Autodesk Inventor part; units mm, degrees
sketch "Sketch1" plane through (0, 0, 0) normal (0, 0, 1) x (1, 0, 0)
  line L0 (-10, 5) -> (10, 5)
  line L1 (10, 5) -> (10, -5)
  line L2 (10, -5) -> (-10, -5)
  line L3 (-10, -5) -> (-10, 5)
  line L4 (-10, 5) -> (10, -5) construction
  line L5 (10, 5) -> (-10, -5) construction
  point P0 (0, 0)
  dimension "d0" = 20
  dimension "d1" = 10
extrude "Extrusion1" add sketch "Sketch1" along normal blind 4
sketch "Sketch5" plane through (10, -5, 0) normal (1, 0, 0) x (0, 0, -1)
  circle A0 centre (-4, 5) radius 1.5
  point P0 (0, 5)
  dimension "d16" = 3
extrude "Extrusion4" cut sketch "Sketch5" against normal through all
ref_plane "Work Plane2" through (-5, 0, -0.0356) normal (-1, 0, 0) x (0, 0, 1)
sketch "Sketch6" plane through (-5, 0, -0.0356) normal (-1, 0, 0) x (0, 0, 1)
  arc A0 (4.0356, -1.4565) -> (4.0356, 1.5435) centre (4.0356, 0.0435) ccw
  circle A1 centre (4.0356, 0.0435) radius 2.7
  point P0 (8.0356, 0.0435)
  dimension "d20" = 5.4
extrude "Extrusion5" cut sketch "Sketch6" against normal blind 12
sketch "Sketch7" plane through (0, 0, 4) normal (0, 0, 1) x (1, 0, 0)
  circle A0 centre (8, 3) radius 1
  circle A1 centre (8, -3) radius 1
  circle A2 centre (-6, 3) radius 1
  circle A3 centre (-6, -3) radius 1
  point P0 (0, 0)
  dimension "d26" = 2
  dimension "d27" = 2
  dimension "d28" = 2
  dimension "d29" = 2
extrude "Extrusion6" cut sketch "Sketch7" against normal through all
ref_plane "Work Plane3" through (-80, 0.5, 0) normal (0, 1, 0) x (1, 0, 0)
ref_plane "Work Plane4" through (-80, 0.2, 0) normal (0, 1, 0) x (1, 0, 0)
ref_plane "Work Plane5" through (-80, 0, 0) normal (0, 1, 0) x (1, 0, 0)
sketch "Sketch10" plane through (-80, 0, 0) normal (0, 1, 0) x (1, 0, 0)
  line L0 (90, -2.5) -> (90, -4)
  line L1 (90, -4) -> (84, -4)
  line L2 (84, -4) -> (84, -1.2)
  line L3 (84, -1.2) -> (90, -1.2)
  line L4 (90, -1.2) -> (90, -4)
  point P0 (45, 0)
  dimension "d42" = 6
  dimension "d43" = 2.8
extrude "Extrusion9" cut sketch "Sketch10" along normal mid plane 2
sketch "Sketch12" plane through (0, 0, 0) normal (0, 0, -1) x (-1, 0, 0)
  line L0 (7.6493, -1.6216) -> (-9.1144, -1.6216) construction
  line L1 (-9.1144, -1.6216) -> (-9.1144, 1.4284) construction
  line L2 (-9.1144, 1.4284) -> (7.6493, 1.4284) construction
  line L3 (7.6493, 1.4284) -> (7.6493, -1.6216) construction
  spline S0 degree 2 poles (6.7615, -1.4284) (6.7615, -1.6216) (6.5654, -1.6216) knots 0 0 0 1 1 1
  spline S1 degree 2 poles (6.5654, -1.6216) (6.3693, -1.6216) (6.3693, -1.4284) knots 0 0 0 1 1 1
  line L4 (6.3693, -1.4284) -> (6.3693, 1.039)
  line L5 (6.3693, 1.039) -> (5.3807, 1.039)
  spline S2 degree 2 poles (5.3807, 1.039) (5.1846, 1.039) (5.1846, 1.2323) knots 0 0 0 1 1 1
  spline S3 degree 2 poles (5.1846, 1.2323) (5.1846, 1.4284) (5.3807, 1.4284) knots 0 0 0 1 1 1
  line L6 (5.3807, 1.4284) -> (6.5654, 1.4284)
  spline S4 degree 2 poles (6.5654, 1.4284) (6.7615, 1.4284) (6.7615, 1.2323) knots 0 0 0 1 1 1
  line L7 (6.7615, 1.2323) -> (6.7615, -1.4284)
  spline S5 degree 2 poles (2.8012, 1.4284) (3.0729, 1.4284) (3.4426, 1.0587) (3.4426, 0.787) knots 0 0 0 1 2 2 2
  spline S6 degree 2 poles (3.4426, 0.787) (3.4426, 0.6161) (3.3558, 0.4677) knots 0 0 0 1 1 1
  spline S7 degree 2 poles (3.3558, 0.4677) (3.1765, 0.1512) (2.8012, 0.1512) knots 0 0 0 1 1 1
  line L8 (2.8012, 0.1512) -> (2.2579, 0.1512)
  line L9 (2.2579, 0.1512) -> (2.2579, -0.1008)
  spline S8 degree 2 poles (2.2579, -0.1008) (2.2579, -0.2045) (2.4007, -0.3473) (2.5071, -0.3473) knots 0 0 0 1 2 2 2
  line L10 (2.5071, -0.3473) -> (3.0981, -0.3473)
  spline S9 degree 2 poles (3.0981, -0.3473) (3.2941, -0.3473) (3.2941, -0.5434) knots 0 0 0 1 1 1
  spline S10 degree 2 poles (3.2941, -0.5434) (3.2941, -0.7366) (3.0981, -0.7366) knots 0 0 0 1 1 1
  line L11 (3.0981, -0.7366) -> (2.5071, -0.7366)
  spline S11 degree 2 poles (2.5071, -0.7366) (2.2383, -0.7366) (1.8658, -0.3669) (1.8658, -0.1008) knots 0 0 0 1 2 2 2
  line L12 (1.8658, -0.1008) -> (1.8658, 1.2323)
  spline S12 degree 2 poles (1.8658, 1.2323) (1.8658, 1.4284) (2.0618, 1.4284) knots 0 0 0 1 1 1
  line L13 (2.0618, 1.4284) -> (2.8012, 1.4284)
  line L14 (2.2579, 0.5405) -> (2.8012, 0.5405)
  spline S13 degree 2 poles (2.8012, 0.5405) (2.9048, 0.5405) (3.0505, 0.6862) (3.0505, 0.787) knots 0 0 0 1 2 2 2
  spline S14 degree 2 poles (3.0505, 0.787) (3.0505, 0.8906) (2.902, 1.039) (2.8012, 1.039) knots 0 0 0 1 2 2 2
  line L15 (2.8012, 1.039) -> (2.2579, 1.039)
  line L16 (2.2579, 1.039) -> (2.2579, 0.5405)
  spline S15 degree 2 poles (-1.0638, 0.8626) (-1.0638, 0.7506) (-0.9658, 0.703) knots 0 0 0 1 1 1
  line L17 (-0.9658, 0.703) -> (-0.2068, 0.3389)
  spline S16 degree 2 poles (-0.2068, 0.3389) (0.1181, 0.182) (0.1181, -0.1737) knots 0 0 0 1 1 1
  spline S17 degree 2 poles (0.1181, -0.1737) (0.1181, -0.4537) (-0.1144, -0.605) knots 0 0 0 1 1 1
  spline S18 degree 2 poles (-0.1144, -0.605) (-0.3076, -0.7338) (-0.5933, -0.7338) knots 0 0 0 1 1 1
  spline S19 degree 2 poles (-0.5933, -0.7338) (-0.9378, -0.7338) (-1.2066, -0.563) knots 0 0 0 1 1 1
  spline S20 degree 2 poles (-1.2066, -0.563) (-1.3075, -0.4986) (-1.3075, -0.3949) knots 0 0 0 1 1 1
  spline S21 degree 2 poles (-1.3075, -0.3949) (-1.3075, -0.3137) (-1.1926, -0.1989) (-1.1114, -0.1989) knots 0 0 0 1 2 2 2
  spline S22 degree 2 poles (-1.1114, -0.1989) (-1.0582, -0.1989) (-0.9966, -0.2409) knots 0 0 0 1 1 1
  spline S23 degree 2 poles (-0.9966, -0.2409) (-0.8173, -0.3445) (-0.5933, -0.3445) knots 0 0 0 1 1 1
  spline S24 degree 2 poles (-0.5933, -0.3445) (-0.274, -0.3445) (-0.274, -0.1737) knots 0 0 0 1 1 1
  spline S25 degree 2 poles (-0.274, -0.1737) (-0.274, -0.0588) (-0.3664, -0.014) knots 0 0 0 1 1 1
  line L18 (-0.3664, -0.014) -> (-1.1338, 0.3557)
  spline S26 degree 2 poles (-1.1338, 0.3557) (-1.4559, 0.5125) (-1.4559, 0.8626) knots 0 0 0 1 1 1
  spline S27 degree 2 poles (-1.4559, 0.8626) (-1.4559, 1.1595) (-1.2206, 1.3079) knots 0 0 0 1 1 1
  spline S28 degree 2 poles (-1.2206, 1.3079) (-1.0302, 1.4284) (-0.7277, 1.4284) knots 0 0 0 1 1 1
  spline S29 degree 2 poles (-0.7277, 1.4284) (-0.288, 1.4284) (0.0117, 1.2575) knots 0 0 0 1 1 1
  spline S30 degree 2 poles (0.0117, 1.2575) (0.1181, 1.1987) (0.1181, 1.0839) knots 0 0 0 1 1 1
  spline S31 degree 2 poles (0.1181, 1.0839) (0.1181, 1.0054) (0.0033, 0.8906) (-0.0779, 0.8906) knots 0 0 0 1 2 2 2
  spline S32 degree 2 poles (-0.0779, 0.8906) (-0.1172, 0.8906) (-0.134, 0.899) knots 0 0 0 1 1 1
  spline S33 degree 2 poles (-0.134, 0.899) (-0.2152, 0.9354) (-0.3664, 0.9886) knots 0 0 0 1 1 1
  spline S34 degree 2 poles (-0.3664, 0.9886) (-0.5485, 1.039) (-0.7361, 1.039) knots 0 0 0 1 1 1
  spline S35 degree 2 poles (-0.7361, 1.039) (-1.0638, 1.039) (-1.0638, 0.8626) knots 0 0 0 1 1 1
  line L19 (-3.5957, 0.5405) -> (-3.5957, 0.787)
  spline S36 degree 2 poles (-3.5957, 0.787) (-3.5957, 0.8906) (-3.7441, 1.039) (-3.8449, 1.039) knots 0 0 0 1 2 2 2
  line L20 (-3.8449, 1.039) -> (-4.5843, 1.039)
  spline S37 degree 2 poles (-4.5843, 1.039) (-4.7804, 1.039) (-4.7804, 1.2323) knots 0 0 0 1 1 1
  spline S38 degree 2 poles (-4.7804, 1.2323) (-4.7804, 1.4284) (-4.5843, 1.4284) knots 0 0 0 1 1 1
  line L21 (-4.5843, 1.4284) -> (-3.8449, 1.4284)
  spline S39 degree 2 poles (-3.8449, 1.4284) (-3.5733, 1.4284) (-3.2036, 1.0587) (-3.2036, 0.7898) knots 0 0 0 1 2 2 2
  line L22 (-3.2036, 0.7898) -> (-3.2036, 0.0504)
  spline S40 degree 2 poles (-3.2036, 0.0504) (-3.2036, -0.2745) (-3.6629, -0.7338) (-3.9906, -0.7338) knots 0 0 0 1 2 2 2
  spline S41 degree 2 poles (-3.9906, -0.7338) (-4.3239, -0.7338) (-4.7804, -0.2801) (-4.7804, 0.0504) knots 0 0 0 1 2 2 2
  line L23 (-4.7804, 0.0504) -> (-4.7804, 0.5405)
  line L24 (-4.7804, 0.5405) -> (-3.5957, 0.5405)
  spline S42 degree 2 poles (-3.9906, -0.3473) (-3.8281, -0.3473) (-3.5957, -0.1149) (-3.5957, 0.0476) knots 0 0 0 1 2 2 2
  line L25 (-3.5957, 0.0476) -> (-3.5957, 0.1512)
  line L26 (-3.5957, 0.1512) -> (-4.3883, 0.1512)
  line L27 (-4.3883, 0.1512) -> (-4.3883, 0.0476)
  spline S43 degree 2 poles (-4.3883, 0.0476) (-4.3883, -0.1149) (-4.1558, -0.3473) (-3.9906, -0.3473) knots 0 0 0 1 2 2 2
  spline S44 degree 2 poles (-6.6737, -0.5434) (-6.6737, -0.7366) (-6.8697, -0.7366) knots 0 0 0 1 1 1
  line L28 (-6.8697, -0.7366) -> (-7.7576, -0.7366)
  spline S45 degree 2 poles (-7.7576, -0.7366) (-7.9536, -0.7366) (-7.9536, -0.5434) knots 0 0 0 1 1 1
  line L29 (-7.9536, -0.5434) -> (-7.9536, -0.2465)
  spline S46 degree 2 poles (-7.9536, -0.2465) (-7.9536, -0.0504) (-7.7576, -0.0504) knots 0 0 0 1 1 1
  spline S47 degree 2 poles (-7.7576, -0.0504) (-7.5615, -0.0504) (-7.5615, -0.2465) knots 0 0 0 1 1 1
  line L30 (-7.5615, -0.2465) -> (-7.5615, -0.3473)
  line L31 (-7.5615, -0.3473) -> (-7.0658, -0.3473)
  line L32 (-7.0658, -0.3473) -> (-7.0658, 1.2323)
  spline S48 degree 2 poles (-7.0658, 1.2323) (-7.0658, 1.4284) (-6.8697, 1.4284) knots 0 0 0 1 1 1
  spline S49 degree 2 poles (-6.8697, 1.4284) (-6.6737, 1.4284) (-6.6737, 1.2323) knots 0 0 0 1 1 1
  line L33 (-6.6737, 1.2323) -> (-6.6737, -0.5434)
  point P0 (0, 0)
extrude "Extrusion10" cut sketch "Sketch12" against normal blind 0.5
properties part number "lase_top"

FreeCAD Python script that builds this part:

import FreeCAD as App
import Part
import Sketcher

V = App.Vector
Q = App.Units.Quantity


def add_polygon(sketch, points):
    """Adds a closed chain of lines whose ends are joined by coincident constraints."""
    first, n = sketch.GeometryCount, len(points)
    for a, b in zip(points, points[1:] + points[:1]):
        sketch.addGeometry(Part.LineSegment(App.Vector(*a, 0), App.Vector(*b, 0)), False)
    for i in range(n):
        sketch.addConstraint(Sketcher.Constraint("Coincident", first + i, 2, first + (i + 1) % n, 1))

doc = App.newDocument("Part")
body = doc.addObject("PartDesign::Body", "Body")

sketch1 = body.newObject("Sketcher::SketchObject", "Sketch")
sketch1.AttachmentSupport = (doc.getObject("XY_Plane"), [""])
sketch1.MapMode = "FlatFace"
add_polygon(sketch1, [(10, 5), (-10, 5), (-10, -5), (10, -5)])
sketch1.addConstraint(Sketcher.Constraint("Horizontal", 0))
sketch1.addConstraint(Sketcher.Constraint("Vertical", 1))
sketch1.addConstraint(Sketcher.Constraint("Horizontal", 2))
sketch1.addConstraint(Sketcher.Constraint("Vertical", 3))
sketch1.addConstraint(Sketcher.Constraint("Symmetric", 0, 2, 2, 2, -1, 1))
sketch1.addConstraint(Sketcher.Constraint("DistanceX", 0, 2, 0, 1, Q("20 mm")))
sketch1.addConstraint(Sketcher.Constraint("DistanceY", 1, 2, 1, 1, Q("10 mm")))
pad1 = body.newObject("PartDesign::Pad", "Pad")
pad1.Profile = sketch1
pad1.Length = 4

sketch2 = body.newObject("Sketcher::SketchObject", "Sketch001")
sketch2.AttachmentSupport = (doc.getObject("YZ_Plane"), [""])
sketch2.MapMode = "FlatFace"
sketch2.AttachmentOffset = App.Placement(V(0, 0, 10), App.Rotation())
sketch2.addGeometry(Part.Circle(V(0, 4, 0), V(0, 0, 1), 1.5), False)
sketch2.addConstraint(Sketcher.Constraint("PointOnObject", 0, 3, -2))
sketch2.addConstraint(Sketcher.Constraint("Diameter", 0, Q("3 mm")))
sketch2.addConstraint(Sketcher.Constraint("DistanceY", -1, 1, 0, 3, Q("4 mm")))
pocket1 = body.newObject("PartDesign::Pocket", "Pocket")
pocket1.Profile = sketch2
pocket1.Type = "ThroughAll"

sketch3 = body.newObject("Sketcher::SketchObject", "Sketch002")
sketch3.AttachmentSupport = (doc.getObject("YZ_Plane"), [""])
sketch3.MapMode = "FlatFace"
sketch3.AttachmentOffset = App.Placement(V(0, 0, -5), App.Rotation())
sketch3.addGeometry(Part.Circle(V(0, 4, 0), V(0, 0, 1), 2.7), False)
sketch3.addConstraint(Sketcher.Constraint("Diameter", 0, Q("5.4 mm")))
sketch3.addConstraint(Sketcher.Constraint("DistanceY", -1, 1, 0, 3, Q("4 mm")))
sketch3.addConstraint(Sketcher.Constraint("DistanceX", -1, 1, 0, 3, Q("0.0435 mm")))
pocket2 = body.newObject("PartDesign::Pocket", "Pocket001")
pocket2.Profile = sketch3
pocket2.Length = 12
pocket2.Reversed = True

sketch4 = body.newObject("Sketcher::SketchObject", "Sketch003")
sketch4.AttachmentSupport = (doc.getObject("XY_Plane"), [""])
sketch4.MapMode = "FlatFace"
sketch4.AttachmentOffset = App.Placement(V(0, 0, 4), App.Rotation())
sketch4.addGeometry(Part.Circle(V(8, 3, 0), V(0, 0, 1), 1), False)
sketch4.addGeometry(Part.Circle(V(8, -3, 0), V(0, 0, 1), 1), False)
sketch4.addGeometry(Part.Circle(V(-6, 3, 0), V(0, 0, 1), 1), False)
sketch4.addGeometry(Part.Circle(V(-6, -3, 0), V(0, 0, 1), 1), False)
sketch4.addConstraint(Sketcher.Constraint("Equal", 0, 1))
sketch4.addConstraint(Sketcher.Constraint("Equal", 1, 2))
sketch4.addConstraint(Sketcher.Constraint("Equal", 2, 3))
sketch4.addConstraint(Sketcher.Constraint("Symmetric", 0, 3, 1, 3, -1))
sketch4.addConstraint(Sketcher.Constraint("Symmetric", 2, 3, 3, 3, -1))
sketch4.addConstraint(Sketcher.Constraint("Horizontal", 0, 3, 2, 3))
sketch4.addConstraint(Sketcher.Constraint("Diameter", 0, Q("2 mm")))
sketch4.addConstraint(Sketcher.Constraint("DistanceX", -1, 1, 0, 3, Q("8 mm")))
sketch4.addConstraint(Sketcher.Constraint("DistanceY", -1, 1, 0, 3, Q("3 mm")))
sketch4.addConstraint(Sketcher.Constraint("DistanceX", 2, 3, -1, 1, Q("6 mm")))
pocket3 = body.newObject("PartDesign::Pocket", "Pocket002")
pocket3.Profile = sketch4
pocket3.Type = "ThroughAll"

sketch5 = body.newObject("Sketcher::SketchObject", "Sketch004")
sketch5.AttachmentSupport = (doc.getObject("XZ_Plane"), [""])
sketch5.MapMode = "FlatFace"
add_polygon(sketch5, [(10, 4), (10, 1.2), (4, 1.2), (4, 4)])
sketch5.addConstraint(Sketcher.Constraint("Vertical", 0))
sketch5.addConstraint(Sketcher.Constraint("Horizontal", 1))
sketch5.addConstraint(Sketcher.Constraint("Vertical", 2))
sketch5.addConstraint(Sketcher.Constraint("Horizontal", 3))
sketch5.addConstraint(Sketcher.Constraint("DistanceX", 1, 2, 1, 1, Q("6 mm")))
sketch5.addConstraint(Sketcher.Constraint("DistanceY", 0, 2, 0, 1, Q("2.8 mm")))
sketch5.addConstraint(Sketcher.Constraint("DistanceX", -1, 1, 0, 2, Q("10 mm")))
sketch5.addConstraint(Sketcher.Constraint("DistanceY", -1, 1, 2, 2, Q("4 mm")))
pocket4 = body.newObject("PartDesign::Pocket", "Pocket003")
pocket4.Profile = sketch5
pocket4.Length = 2
pocket4.Midplane = True

sketch6 = body.newObject("Sketcher::SketchObject", "Sketch005")
sketch6.AttachmentSupport = (doc.getObject("XY_Plane"), [""])
sketch6.MapMode = "FlatFace"
sketch6.addGeometry(Part.BSplineCurve([V(-6.7615, -1.4284, 0), V(-6.7615, -1.6216, 0), V(-6.5654, -1.6216, 0)], [3, 3], [0, 1], False, 2, [1, 1, 1], False), False)
sketch6.addGeometry(Part.LineSegment(V(-6.7615, -1.4284, 0), V(-6.7615, 1.2323, 0)), False)
sketch6.addGeometry(Part.BSplineCurve([V(-6.5654, 1.4284, 0), V(-6.7615, 1.4284, 0), V(-6.7615, 1.2323, 0)], [3, 3], [0, 1], False, 2, [1, 1, 1], False), False)
sketch6.addGeometry(Part.LineSegment(V(-6.5654, 1.4284, 0), V(-5.3807, 1.4284, 0)), False)
sketch6.addGeometry(Part.BSplineCurve([V(-5.1846, 1.2323, 0), V(-5.1846, 1.4284, 0), V(-5.3807, 1.4284, 0)], [3, 3], [0, 1], False, 2, [1, 1, 1], False), False)
sketch6.addGeometry(Part.BSplineCurve([V(-5.3807, 1.039, 0), V(-5.1846, 1.039, 0), V(-5.1846, 1.2323, 0)], [3, 3], [0, 1], False, 2, [1, 1, 1], False), False)
sketch6.addGeometry(Part.LineSegment(V(-5.3807, 1.039, 0), V(-6.3693, 1.039, 0)), False)
sketch6.addGeometry(Part.LineSegment(V(-6.3693, 1.039, 0), V(-6.3693, -1.4284, 0)), False)
sketch6.addGeometry(Part.BSplineCurve([V(-6.5654, -1.6216, 0), V(-6.3693, -1.6216, 0), V(-6.3693, -1.4284, 0)], [3, 3], [0, 1], False, 2, [1, 1, 1], False), False)
sketch6.addGeometry(Part.BSplineCurve([V(-2.8012, 1.4284, 0), V(-3.0729, 1.4284, 0), V(-3.4426, 1.0587, 0), V(-3.4426, 0.787, 0)], [3, 1, 3], [0, 1, 2], False, 2, [1, 1, 1, 1], False), False)
sketch6.addGeometry(Part.LineSegment(V(-2.8012, 1.4284, 0), V(-2.0618, 1.4284, 0)), False)
sketch6.addGeometry(Part.BSplineCurve([V(-1.8658, 1.2323, 0), V(-1.8658, 1.4284, 0), V(-2.0618, 1.4284, 0)], [3, 3], [0, 1], False, 2, [1, 1, 1], False), False)
sketch6.addGeometry(Part.LineSegment(V(-1.8658, 1.2323, 0), V(-1.8658, -0.1008, 0)), False)
sketch6.addGeometry(Part.BSplineCurve([V(-2.5071, -0.7366, 0), V(-2.2383, -0.7366, 0), V(-1.8658, -0.3669, 0), V(-1.8658, -0.1008, 0)], [3, 1, 3], [0, 1, 2], False, 2, [1, 1, 1, 1], False), False)
sketch6.addGeometry(Part.LineSegment(V(-2.5071, -0.7366, 0), V(-3.0981, -0.7366, 0)), False)
sketch6.addGeometry(Part.BSplineCurve([V(-3.2941, -0.5434, 0), V(-3.2941, -0.7366, 0), V(-3.0981, -0.7366, 0)], [3, 3], [0, 1], False, 2, [1, 1, 1], False), False)
sketch6.addGeometry(Part.BSplineCurve([V(-3.0981, -0.3473, 0), V(-3.2941, -0.3473, 0), V(-3.2941, -0.5434, 0)], [3, 3], [0, 1], False, 2, [1, 1, 1], False), False)
sketch6.addGeometry(Part.LineSegment(V(-3.0981, -0.3473, 0), V(-2.5071, -0.3473, 0)), False)
sketch6.addGeometry(Part.BSplineCurve([V(-2.2579, -0.1008, 0), V(-2.2579, -0.2045, 0), V(-2.4007, -0.3473, 0), V(-2.5071, -0.3473, 0)], [3, 1, 3], [0, 1, 2], False, 2, [1, 1, 1, 1], False), False)
sketch6.addGeometry(Part.LineSegment(V(-2.2579, -0.1008, 0), V(-2.2579, 0.1512, 0)), False)
sketch6.addGeometry(Part.LineSegment(V(-2.2579, 0.1512, 0), V(-2.8012, 0.1512, 0)), False)
sketch6.addGeometry(Part.BSplineCurve([V(-3.3558, 0.4677, 0), V(-3.1765, 0.1512, 0), V(-2.8012, 0.1512, 0)], [3, 3], [0, 1], False, 2, [1, 1, 1], False), False)
sketch6.addGeometry(Part.BSplineCurve([V(-3.4426, 0.787, 0), V(-3.4426, 0.6161, 0), V(-3.3558, 0.4677, 0)], [3, 3], [0, 1], False, 2, [1, 1, 1], False), False)
sketch6.addGeometry(Part.LineSegment(V(-2.8012, 0.5405, 0), V(-2.2579, 0.5405, 0)), False)
sketch6.addGeometry(Part.LineSegment(V(-2.2579, 0.5405, 0), V(-2.2579, 1.039, 0)), False)
sketch6.addGeometry(Part.LineSegment(V(-2.2579, 1.039, 0), V(-2.8012, 1.039, 0)), False)
sketch6.addGeometry(Part.BSplineCurve([V(-3.0505, 0.787, 0), V(-3.0505, 0.8906, 0), V(-2.902, 1.039, 0), V(-2.8012, 1.039, 0)], [3, 1, 3], [0, 1, 2], False, 2, [1, 1, 1, 1], False), False)
sketch6.addGeometry(Part.BSplineCurve([V(-2.8012, 0.5405, 0), V(-2.9048, 0.5405, 0), V(-3.0505, 0.6862, 0), V(-3.0505, 0.787, 0)], [3, 1, 3], [0, 1, 2], False, 2, [1, 1, 1, 1], False), False)
sketch6.addGeometry(Part.BSplineCurve([V(1.0638, 0.8626, 0), V(1.0638, 0.7506, 0), V(0.9658, 0.703, 0)], [3, 3], [0, 1], False, 2, [1, 1, 1], False), False)
sketch6.addGeometry(Part.BSplineCurve([V(0.7361, 1.039, 0), V(1.0638, 1.039, 0), V(1.0638, 0.8626, 0)], [3, 3], [0, 1], False, 2, [1, 1, 1], False), False)
sketch6.addGeometry(Part.BSplineCurve([V(0.3664, 0.9886, 0), V(0.5485, 1.039, 0), V(0.7361, 1.039, 0)], [3, 3], [0, 1], False, 2, [1, 1, 1], False), False)
sketch6.addGeometry(Part.BSplineCurve([V(0.134, 0.899, 0), V(0.2152, 0.9354, 0), V(0.3664, 0.9886, 0)], [3, 3], [0, 1], False, 2, [1, 1, 1], False), False)
sketch6.addGeometry(Part.BSplineCurve([V(0.0779, 0.8906, 0), V(0.1172, 0.8906, 0), V(0.134, 0.899, 0)], [3, 3], [0, 1], False, 2, [1, 1, 1], False), False)
sketch6.addGeometry(Part.BSplineCurve([V(-0.1181, 1.0839, 0), V(-0.1181, 1.0054, 0), V(-0.0033, 0.8906, 0), V(0.0779, 0.8906, 0)], [3, 1, 3], [0, 1, 2], False, 2, [1, 1, 1, 1], False), False)
sketch6.addGeometry(Part.BSplineCurve([V(-0.0117, 1.2575, 0), V(-0.1181, 1.1987, 0), V(-0.1181, 1.0839, 0)], [3, 3], [0, 1], False, 2, [1, 1, 1], False), False)
sketch6.addGeometry(Part.BSplineCurve([V(0.7277, 1.4284, 0), V(0.288, 1.4284, 0), V(-0.0117, 1.2575, 0)], [3, 3], [0, 1], False, 2, [1, 1, 1], False), False)
sketch6.addGeometry(Part.BSplineCurve([V(1.2206, 1.3079, 0), V(1.0302, 1.4284, 0), V(0.7277, 1.4284, 0)], [3, 3], [0, 1], False, 2, [1, 1, 1], False), False)
sketch6.addGeometry(Part.BSplineCurve([V(1.4559, 0.8626, 0), V(1.4559, 1.1595, 0), V(1.2206, 1.3079, 0)], [3, 3], [0, 1], False, 2, [1, 1, 1], False), False)
sketch6.addGeometry(Part.BSplineCurve([V(1.1338, 0.3557, 0), V(1.4559, 0.5125, 0), V(1.4559, 0.8626, 0)], [3, 3], [0, 1], False, 2, [1, 1, 1], False), False)
sketch6.addGeometry(Part.LineSegment(V(1.1338, 0.3557, 0), V(0.3664, -0.014, 0)), False)
sketch6.addGeometry(Part.BSplineCurve([V(0.274, -0.1737, 0), V(0.274, -0.0588, 0), V(0.3664, -0.014, 0)], [3, 3], [0, 1], False, 2, [1, 1, 1], False), False)
sketch6.addGeometry(Part.BSplineCurve([V(0.5933, -0.3445, 0), V(0.274, -0.3445, 0), V(0.274, -0.1737, 0)], [3, 3], [0, 1], False, 2, [1, 1, 1], False), False)
sketch6.addGeometry(Part.BSplineCurve([V(0.9966, -0.2409, 0), V(0.8173, -0.3445, 0), V(0.5933, -0.3445, 0)], [3, 3], [0, 1], False, 2, [1, 1, 1], False), False)
sketch6.addGeometry(Part.BSplineCurve([V(1.1114, -0.1989, 0), V(1.0582, -0.1989, 0), V(0.9966, -0.2409, 0)], [3, 3], [0, 1], False, 2, [1, 1, 1], False), False)
sketch6.addGeometry(Part.BSplineCurve([V(1.3075, -0.3949, 0), V(1.3075, -0.3137, 0), V(1.1926, -0.1989, 0), V(1.1114, -0.1989, 0)], [3, 1, 3], [0, 1, 2], False, 2, [1, 1, 1, 1], False), False)
sketch6.addGeometry(Part.BSplineCurve([V(1.2066, -0.563, 0), V(1.3075, -0.4986, 0), V(1.3075, -0.3949, 0)], [3, 3], [0, 1], False, 2, [1, 1, 1], False), False)
sketch6.addGeometry(Part.BSplineCurve([V(0.5933, -0.7338, 0), V(0.9378, -0.7338, 0), V(1.2066, -0.563, 0)], [3, 3], [0, 1], False, 2, [1, 1, 1], False), False)
sketch6.addGeometry(Part.BSplineCurve([V(0.1144, -0.605, 0), V(0.3076, -0.7338, 0), V(0.5933, -0.7338, 0)], [3, 3], [0, 1], False, 2, [1, 1, 1], False), False)
sketch6.addGeometry(Part.BSplineCurve([V(-0.1181, -0.1737, 0), V(-0.1181, -0.4537, 0), V(0.1144, -0.605, 0)], [3, 3], [0, 1], False, 2, [1, 1, 1], False), False)
sketch6.addGeometry(Part.BSplineCurve([V(0.2068, 0.3389, 0), V(-0.1181, 0.182, 0), V(-0.1181, -0.1737, 0)], [3, 3], [0, 1], False, 2, [1, 1, 1], False), False)
sketch6.addGeometry(Part.LineSegment(V(0.2068, 0.3389, 0), V(0.9658, 0.703, 0)), False)
sketch6.addGeometry(Part.LineSegment(V(3.5957, 0.787, 0), V(3.5957, 0.5405, 0)), False)
sketch6.addGeometry(Part.LineSegment(V(3.5957, 0.5405, 0), V(4.7804, 0.5405, 0)), False)
sketch6.addGeometry(Part.LineSegment(V(4.7804, 0.5405, 0), V(4.7804, 0.0504, 0)), False)
sketch6.addGeometry(Part.BSplineCurve([V(3.9906, -0.7338, 0), V(4.3239, -0.7338, 0), V(4.7804, -0.2801, 0), V(4.7804, 0.0504, 0)], [3, 1, 3], [0, 1, 2], False, 2, [1, 1, 1, 1], False), False)
sketch6.addGeometry(Part.BSplineCurve([V(3.2036, 0.0504, 0), V(3.2036, -0.2745, 0), V(3.6629, -0.7338, 0), V(3.9906, -0.7338, 0)], [3, 1, 3], [0, 1, 2], False, 2, [1, 1, 1, 1], False), False)
sketch6.addGeometry(Part.LineSegment(V(3.2036, 0.0504, 0), V(3.2036, 0.7898, 0)), False)
sketch6.addGeometry(Part.BSplineCurve([V(3.8449, 1.4284, 0), V(3.5733, 1.4284, 0), V(3.2036, 1.0587, 0), V(3.2036, 0.7898, 0)], [3, 1, 3], [0, 1, 2], False, 2, [1, 1, 1, 1], False), False)
sketch6.addGeometry(Part.LineSegment(V(3.8449, 1.4284, 0), V(4.5843, 1.4284, 0)), False)
sketch6.addGeometry(Part.BSplineCurve([V(4.7804, 1.2323, 0), V(4.7804, 1.4284, 0), V(4.5843, 1.4284, 0)], [3, 3], [0, 1], False, 2, [1, 1, 1], False), False)
sketch6.addGeometry(Part.BSplineCurve([V(4.5843, 1.039, 0), V(4.7804, 1.039, 0), V(4.7804, 1.2323, 0)], [3, 3], [0, 1], False, 2, [1, 1, 1], False), False)
sketch6.addGeometry(Part.LineSegment(V(4.5843, 1.039, 0), V(3.8449, 1.039, 0)), False)
sketch6.addGeometry(Part.BSplineCurve([V(3.5957, 0.787, 0), V(3.5957, 0.8906, 0), V(3.7441, 1.039, 0), V(3.8449, 1.039, 0)], [3, 1, 3], [0, 1, 2], False, 2, [1, 1, 1, 1], False), False)
sketch6.addGeometry(Part.BSplineCurve([V(3.9906, -0.3473, 0), V(3.8281, -0.3473, 0), V(3.5957, -0.1149, 0), V(3.5957, 0.0476, 0)], [3, 1, 3], [0, 1, 2], False, 2, [1, 1, 1, 1], False), False)
sketch6.addGeometry(Part.BSplineCurve([V(4.3883, 0.0476, 0), V(4.3883, -0.1149, 0), V(4.1558, -0.3473, 0), V(3.9906, -0.3473, 0)], [3, 1, 3], [0, 1, 2], False, 2, [1, 1, 1, 1], False), False)
sketch6.addGeometry(Part.LineSegment(V(4.3883, 0.0476, 0), V(4.3883, 0.1512, 0)), False)
sketch6.addGeometry(Part.LineSegment(V(4.3883, 0.1512, 0), V(3.5957, 0.1512, 0)), False)
sketch6.addGeometry(Part.LineSegment(V(3.5957, 0.1512, 0), V(3.5957, 0.0476, 0)), False)
sketch6.addGeometry(Part.BSplineCurve([V(6.6737, -0.5434, 0), V(6.6737, -0.7366, 0), V(6.8697, -0.7366, 0)], [3, 3], [0, 1], False, 2, [1, 1, 1], False), False)
sketch6.addGeometry(Part.LineSegment(V(6.6737, -0.5434, 0), V(6.6737, 1.2323, 0)), False)
sketch6.addGeometry(Part.BSplineCurve([V(6.8697, 1.4284, 0), V(6.6737, 1.4284, 0), V(6.6737, 1.2323, 0)], [3, 3], [0, 1], False, 2, [1, 1, 1], False), False)
sketch6.addGeometry(Part.BSplineCurve([V(7.0658, 1.2323, 0), V(7.0658, 1.4284, 0), V(6.8697, 1.4284, 0)], [3, 3], [0, 1], False, 2, [1, 1, 1], False), False)
sketch6.addGeometry(Part.LineSegment(V(7.0658, 1.2323, 0), V(7.0658, -0.3473, 0)), False)
sketch6.addGeometry(Part.LineSegment(V(7.0658, -0.3473, 0), V(7.5615, -0.3473, 0)), False)
sketch6.addGeometry(Part.LineSegment(V(7.5615, -0.3473, 0), V(7.5615, -0.2465, 0)), False)
sketch6.addGeometry(Part.BSplineCurve([V(7.7576, -0.0504, 0), V(7.5615, -0.0504, 0), V(7.5615, -0.2465, 0)], [3, 3], [0, 1], False, 2, [1, 1, 1], False), False)
sketch6.addGeometry(Part.BSplineCurve([V(7.9536, -0.2465, 0), V(7.9536, -0.0504, 0), V(7.7576, -0.0504, 0)], [3, 3], [0, 1], False, 2, [1, 1, 1], False), False)
sketch6.addGeometry(Part.LineSegment(V(7.9536, -0.2465, 0), V(7.9536, -0.5434, 0)), False)
sketch6.addGeometry(Part.BSplineCurve([V(7.7576, -0.7366, 0), V(7.9536, -0.7366, 0), V(7.9536, -0.5434, 0)], [3, 3], [0, 1], False, 2, [1, 1, 1], False), False)
sketch6.addGeometry(Part.LineSegment(V(7.7576, -0.7366, 0), V(6.8697, -0.7366, 0)), False)
sketch6.addConstraint(Sketcher.Constraint("Block", 0))
sketch6.addConstraint(Sketcher.Constraint("Block", 2))
sketch6.addConstraint(Sketcher.Constraint("Block", 4))
sketch6.addConstraint(Sketcher.Constraint("Block", 5))
sketch6.addConstraint(Sketcher.Constraint("Block", 8))
sketch6.addConstraint(Sketcher.Constraint("Block", 9))
sketch6.addConstraint(Sketcher.Constraint("Block", 11))
sketch6.addConstraint(Sketcher.Constraint("Block", 13))
sketch6.addConstraint(Sketcher.Constraint("Block", 15))
sketch6.addConstraint(Sketcher.Constraint("Block", 16))
sketch6.addConstraint(Sketcher.Constraint("Block", 18))
sketch6.addConstraint(Sketcher.Constraint("Block", 21))
sketch6.addConstraint(Sketcher.Constraint("Block", 22))
sketch6.addConstraint(Sketcher.Constraint("Block", 26))
sketch6.addConstraint(Sketcher.Constraint("Block", 27))
sketch6.addConstraint(Sketcher.Constraint("Block", 28))
sketch6.addConstraint(Sketcher.Constraint("Block", 29))
sketch6.addConstraint(Sketcher.Constraint("Block", 30))
sketch6.addConstraint(Sketcher.Constraint("Block", 31))
sketch6.addConstraint(Sketcher.Constraint("Block", 32))
sketch6.addConstraint(Sketcher.Constraint("Block", 33))
sketch6.addConstraint(Sketcher.Constraint("Block", 34))
sketch6.addConstraint(Sketcher.Constraint("Block", 35))
sketch6.addConstraint(Sketcher.Constraint("Block", 36))
sketch6.addConstraint(Sketcher.Constraint("Block", 37))
sketch6.addConstraint(Sketcher.Constraint("Block", 38))
sketch6.addConstraint(Sketcher.Constraint("Block", 40))
sketch6.addConstraint(Sketcher.Constraint("Block", 41))
sketch6.addConstraint(Sketcher.Constraint("Block", 42))
sketch6.addConstraint(Sketcher.Constraint("Block", 43))
sketch6.addConstraint(Sketcher.Constraint("Block", 44))
sketch6.addConstraint(Sketcher.Constraint("Block", 45))
sketch6.addConstraint(Sketcher.Constraint("Block", 46))
sketch6.addConstraint(Sketcher.Constraint("Block", 47))
sketch6.addConstraint(Sketcher.Constraint("Block", 48))
sketch6.addConstraint(Sketcher.Constraint("Block", 49))
sketch6.addConstraint(Sketcher.Constraint("Block", 54))
sketch6.addConstraint(Sketcher.Constraint("Block", 55))
sketch6.addConstraint(Sketcher.Constraint("Block", 57))
sketch6.addConstraint(Sketcher.Constraint("Block", 59))
sketch6.addConstraint(Sketcher.Constraint("Block", 60))
sketch6.addConstraint(Sketcher.Constraint("Block", 62))
sketch6.addConstraint(Sketcher.Constraint("Block", 63))
sketch6.addConstraint(Sketcher.Constraint("Block", 64))
sketch6.addConstraint(Sketcher.Constraint("Block", 68))
sketch6.addConstraint(Sketcher.Constraint("Block", 70))
sketch6.addConstraint(Sketcher.Constraint("Block", 71))
sketch6.addConstraint(Sketcher.Constraint("Block", 75))
sketch6.addConstraint(Sketcher.Constraint("Block", 76))
sketch6.addConstraint(Sketcher.Constraint("Block", 78))
sketch6.addConstraint(Sketcher.Constraint("Coincident", 0, 1, 1, 1))
sketch6.addConstraint(Sketcher.Constraint("Coincident", 1, 2, 2, 2))
sketch6.addConstraint(Sketcher.Constraint("Coincident", 2, 1, 3, 1))
sketch6.addConstraint(Sketcher.Constraint("Coincident", 3, 2, 4, 2))
sketch6.addConstraint(Sketcher.Constraint("Coincident", 5, 1, 6, 1))
sketch6.addConstraint(Sketcher.Constraint("Coincident", 6, 2, 7, 1))
sketch6.addConstraint(Sketcher.Constraint("Coincident", 7, 2, 8, 2))
sketch6.addConstraint(Sketcher.Constraint("Coincident", 9, 1, 10, 1))
sketch6.addConstraint(Sketcher.Constraint("Coincident", 10, 2, 11, 2))
sketch6.addConstraint(Sketcher.Constraint("Coincident", 11, 1, 12, 1))
sketch6.addConstraint(Sketcher.Constraint("Coincident", 12, 2, 13, 2))
sketch6.addConstraint(Sketcher.Constraint("Coincident", 13, 1, 14, 1))
sketch6.addConstraint(Sketcher.Constraint("Coincident", 14, 2, 15, 2))
sketch6.addConstraint(Sketcher.Constraint("Coincident", 16, 1, 17, 1))
sketch6.addConstraint(Sketcher.Constraint("Coincident", 17, 2, 18, 2))
sketch6.addConstraint(Sketcher.Constraint("Coincident", 18, 1, 19, 1))
sketch6.addConstraint(Sketcher.Constraint("Coincident", 19, 2, 20, 1))
sketch6.addConstraint(Sketcher.Constraint("Coincident", 20, 2, 21, 2))
sketch6.addConstraint(Sketcher.Constraint("Coincident", 23, 2, 24, 1))
sketch6.addConstraint(Sketcher.Constraint("Coincident", 24, 2, 25, 1))
sketch6.addConstraint(Sketcher.Constraint("Coincident", 25, 2, 26, 2))
sketch6.addConstraint(Sketcher.Constraint("Coincident", 27, 1, 23, 1))
sketch6.addConstraint(Sketcher.Constraint("Coincident", 38, 1, 39, 1))
sketch6.addConstraint(Sketcher.Constraint("Coincident", 39, 2, 40, 2))
sketch6.addConstraint(Sketcher.Constraint("Coincident", 49, 1, 50, 1))
sketch6.addConstraint(Sketcher.Constraint("Coincident", 50, 2, 28, 2))
sketch6.addConstraint(Sketcher.Constraint("Coincident", 51, 2, 52, 1))
sketch6.addConstraint(Sketcher.Constraint("Coincident", 52, 2, 53, 1))
sketch6.addConstraint(Sketcher.Constraint("Coincident", 53, 2, 54, 2))
sketch6.addConstraint(Sketcher.Constraint("Coincident", 55, 1, 56, 1))
sketch6.addConstraint(Sketcher.Constraint("Coincident", 56, 2, 57, 2))
sketch6.addConstraint(Sketcher.Constraint("Coincident", 57, 1, 58, 1))
sketch6.addConstraint(Sketcher.Constraint("Coincident", 58, 2, 59, 2))
sketch6.addConstraint(Sketcher.Constraint("Coincident", 60, 1, 61, 1))
sketch6.addConstraint(Sketcher.Constraint("Coincident", 61, 2, 62, 2))
sketch6.addConstraint(Sketcher.Constraint("Coincident", 62, 1, 51, 1))
sketch6.addConstraint(Sketcher.Constraint("Coincident", 64, 1, 65, 1))
sketch6.addConstraint(Sketcher.Constraint("Coincident", 65, 2, 66, 1))
sketch6.addConstraint(Sketcher.Constraint("Coincident", 66, 2, 67, 1))
sketch6.addConstraint(Sketcher.Constraint("Coincident", 67, 2, 63, 2))
sketch6.addConstraint(Sketcher.Constraint("Coincident", 68, 1, 69, 1))
sketch6.addConstraint(Sketcher.Constraint("Coincident", 69, 2, 70, 2))
sketch6.addConstraint(Sketcher.Constraint("Coincident", 71, 1, 72, 1))
sketch6.addConstraint(Sketcher.Constraint("Coincident", 72, 2, 73, 1))
sketch6.addConstraint(Sketcher.Constraint("Coincident", 73, 2, 74, 1))
sketch6.addConstraint(Sketcher.Constraint("Coincident", 74, 2, 75, 2))
sketch6.addConstraint(Sketcher.Constraint("Coincident", 76, 1, 77, 1))
sketch6.addConstraint(Sketcher.Constraint("Coincident", 77, 2, 78, 2))
sketch6.addConstraint(Sketcher.Constraint("Coincident", 78, 1, 79, 1))
sketch6.addConstraint(Sketcher.Constraint("Coincident", 79, 2, 68, 2))
sketch6.addConstraint(Sketcher.Constraint("Horizontal", 6))
sketch6.addConstraint(Sketcher.Constraint("Vertical", 7))
sketch6.addConstraint(Sketcher.Constraint("Vertical", 19))
sketch6.addConstraint(Sketcher.Constraint("Horizontal", 20))
sketch6.addConstraint(Sketcher.Constraint("Horizontal", 23))
sketch6.addConstraint(Sketcher.Constraint("Vertical", 24))
sketch6.addConstraint(Sketcher.Constraint("Horizontal", 25))
sketch6.addConstraint(Sketcher.Constraint("Vertical", 51))
sketch6.addConstraint(Sketcher.Constraint("Horizontal", 52))
sketch6.addConstraint(Sketcher.Constraint("Vertical", 53))
sketch6.addConstraint(Sketcher.Constraint("Vertical", 65))
sketch6.addConstraint(Sketcher.Constraint("Horizontal", 66))
sketch6.addConstraint(Sketcher.Constraint("Vertical", 67))
sketch6.addConstraint(Sketcher.Constraint("Vertical", 72))
sketch6.addConstraint(Sketcher.Constraint("Horizontal", 73))
sketch6.addConstraint(Sketcher.Constraint("Vertical", 74))
sketch6.addConstraint(Sketcher.Constraint("Horizontal", 23, 2, 51, 2))
sketch6.addConstraint(Sketcher.Constraint("Horizontal", 20, 2, 65, 2))
sketch6.addConstraint(Sketcher.Constraint("Horizontal", 17, 2, 72, 2))
sketch6.addConstraint(Sketcher.Constraint("Vertical", 19, 2, 23, 2))
pocket5 = body.newObject("PartDesign::Pocket", "Pocket004")
pocket5.Profile = sketch6
pocket5.Length = 0.5
pocket5.Reversed = True

doc.recompute()
